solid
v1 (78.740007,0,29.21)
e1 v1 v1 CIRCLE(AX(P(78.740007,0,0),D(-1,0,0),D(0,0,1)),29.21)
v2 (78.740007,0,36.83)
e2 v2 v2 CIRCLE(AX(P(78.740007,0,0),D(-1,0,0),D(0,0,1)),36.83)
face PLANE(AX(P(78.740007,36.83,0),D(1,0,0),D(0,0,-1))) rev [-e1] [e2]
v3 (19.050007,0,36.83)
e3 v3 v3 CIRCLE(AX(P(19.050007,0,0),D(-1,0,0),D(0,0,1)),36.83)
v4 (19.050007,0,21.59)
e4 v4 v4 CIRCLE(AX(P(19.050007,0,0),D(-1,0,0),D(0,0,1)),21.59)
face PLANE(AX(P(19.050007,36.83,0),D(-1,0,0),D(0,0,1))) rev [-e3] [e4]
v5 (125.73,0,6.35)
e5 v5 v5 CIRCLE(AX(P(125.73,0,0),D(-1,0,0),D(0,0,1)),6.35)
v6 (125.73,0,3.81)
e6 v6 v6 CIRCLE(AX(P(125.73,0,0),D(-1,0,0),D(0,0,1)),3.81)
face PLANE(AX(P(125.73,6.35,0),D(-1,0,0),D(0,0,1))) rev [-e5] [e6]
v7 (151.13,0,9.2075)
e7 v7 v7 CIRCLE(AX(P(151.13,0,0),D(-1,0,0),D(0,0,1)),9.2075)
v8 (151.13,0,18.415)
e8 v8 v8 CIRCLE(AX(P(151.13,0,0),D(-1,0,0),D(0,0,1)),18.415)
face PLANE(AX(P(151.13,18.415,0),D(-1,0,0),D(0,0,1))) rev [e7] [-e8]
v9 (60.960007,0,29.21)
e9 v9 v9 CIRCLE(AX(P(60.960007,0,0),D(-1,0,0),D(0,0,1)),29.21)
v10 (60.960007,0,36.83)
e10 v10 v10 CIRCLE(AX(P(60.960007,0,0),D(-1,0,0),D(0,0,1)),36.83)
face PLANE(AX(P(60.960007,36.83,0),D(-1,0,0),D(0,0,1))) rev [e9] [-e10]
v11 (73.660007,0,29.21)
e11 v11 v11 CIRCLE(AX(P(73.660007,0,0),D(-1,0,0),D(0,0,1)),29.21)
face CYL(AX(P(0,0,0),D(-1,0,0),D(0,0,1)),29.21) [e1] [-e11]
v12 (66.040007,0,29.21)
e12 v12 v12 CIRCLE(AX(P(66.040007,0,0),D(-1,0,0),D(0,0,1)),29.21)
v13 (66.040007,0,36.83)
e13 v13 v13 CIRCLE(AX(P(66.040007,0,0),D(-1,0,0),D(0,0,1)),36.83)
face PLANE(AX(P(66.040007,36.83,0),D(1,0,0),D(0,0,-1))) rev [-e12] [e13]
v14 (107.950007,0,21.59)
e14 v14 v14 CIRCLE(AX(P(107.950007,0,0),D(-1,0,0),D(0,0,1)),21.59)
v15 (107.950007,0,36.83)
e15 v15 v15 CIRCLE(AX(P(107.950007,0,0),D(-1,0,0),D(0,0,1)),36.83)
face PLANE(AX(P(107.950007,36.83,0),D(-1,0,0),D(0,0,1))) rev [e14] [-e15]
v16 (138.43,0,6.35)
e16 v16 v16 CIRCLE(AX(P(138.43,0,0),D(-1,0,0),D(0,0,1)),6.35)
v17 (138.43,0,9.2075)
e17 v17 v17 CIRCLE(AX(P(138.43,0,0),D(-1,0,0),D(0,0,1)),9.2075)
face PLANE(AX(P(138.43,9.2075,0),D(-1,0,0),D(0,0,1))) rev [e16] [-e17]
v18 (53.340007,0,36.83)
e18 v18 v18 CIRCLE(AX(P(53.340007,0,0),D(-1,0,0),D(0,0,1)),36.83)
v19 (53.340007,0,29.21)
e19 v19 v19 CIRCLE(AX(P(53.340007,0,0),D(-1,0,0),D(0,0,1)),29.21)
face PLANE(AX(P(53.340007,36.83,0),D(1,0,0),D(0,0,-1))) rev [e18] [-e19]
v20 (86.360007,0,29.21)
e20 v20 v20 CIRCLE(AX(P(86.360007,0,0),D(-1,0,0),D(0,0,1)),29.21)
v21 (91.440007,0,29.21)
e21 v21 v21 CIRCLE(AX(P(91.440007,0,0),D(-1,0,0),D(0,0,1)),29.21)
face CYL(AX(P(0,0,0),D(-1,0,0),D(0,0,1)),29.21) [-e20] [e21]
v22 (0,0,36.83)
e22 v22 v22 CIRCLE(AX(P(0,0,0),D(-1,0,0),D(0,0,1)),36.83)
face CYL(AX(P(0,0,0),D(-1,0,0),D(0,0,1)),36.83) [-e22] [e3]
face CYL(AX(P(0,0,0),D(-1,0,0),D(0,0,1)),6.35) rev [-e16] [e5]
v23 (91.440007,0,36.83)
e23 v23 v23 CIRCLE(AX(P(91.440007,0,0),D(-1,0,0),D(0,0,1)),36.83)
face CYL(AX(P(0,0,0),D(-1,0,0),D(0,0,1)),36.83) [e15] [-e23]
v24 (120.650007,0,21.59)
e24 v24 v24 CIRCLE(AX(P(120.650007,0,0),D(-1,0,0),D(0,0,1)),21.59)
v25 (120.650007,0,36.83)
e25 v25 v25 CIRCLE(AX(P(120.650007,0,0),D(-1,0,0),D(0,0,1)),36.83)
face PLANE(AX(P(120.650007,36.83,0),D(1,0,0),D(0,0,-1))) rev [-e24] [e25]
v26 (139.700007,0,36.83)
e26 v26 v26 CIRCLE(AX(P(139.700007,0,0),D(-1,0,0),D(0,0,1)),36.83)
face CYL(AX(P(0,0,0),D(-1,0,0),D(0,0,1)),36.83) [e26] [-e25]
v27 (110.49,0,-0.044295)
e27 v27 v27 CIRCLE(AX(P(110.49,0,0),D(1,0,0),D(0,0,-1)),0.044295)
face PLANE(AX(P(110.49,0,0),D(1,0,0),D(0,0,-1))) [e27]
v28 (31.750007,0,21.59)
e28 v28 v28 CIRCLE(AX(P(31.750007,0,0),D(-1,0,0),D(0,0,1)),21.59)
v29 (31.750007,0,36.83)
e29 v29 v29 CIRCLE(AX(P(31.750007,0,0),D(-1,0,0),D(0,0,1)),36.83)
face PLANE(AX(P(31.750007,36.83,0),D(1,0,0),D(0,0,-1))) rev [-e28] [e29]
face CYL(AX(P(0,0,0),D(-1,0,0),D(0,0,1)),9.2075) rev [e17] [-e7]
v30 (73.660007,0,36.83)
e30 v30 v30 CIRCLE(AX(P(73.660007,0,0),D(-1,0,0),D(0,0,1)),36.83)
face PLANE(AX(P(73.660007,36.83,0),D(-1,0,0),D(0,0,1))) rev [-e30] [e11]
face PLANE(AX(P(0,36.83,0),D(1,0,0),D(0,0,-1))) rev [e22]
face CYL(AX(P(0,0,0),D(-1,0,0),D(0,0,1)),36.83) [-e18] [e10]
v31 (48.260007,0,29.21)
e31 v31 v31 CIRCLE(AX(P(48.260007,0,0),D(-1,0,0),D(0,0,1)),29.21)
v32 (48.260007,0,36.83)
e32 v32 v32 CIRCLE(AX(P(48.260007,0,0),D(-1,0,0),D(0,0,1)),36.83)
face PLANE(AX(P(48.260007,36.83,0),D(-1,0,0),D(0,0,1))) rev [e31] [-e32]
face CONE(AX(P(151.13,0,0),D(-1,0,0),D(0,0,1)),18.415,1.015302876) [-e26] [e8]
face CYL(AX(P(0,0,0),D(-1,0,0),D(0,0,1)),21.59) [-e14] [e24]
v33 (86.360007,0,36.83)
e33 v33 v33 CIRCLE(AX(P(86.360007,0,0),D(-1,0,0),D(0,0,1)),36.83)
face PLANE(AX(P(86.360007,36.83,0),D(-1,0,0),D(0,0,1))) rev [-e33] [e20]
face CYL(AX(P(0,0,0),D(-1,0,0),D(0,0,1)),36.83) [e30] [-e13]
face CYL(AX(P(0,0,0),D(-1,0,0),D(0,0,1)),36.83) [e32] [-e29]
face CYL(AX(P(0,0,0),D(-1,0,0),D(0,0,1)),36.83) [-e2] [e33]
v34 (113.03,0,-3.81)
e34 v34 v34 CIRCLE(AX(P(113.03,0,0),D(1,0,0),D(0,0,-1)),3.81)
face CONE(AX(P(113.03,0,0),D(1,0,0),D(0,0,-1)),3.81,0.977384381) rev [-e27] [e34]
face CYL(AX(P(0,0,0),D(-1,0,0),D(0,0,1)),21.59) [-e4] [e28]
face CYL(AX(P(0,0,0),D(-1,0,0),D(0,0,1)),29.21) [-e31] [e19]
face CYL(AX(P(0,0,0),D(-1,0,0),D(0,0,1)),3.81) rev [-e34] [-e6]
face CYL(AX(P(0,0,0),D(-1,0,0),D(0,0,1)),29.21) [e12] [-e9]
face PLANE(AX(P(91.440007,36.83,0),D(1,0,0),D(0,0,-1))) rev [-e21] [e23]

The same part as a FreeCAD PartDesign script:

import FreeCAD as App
import Part
import Sketcher
Q = App.Units.Quantity

doc = App.newDocument("Part")
body = doc.addObject("PartDesign::Body", "Body")

# Sketch on XY plane
sketch1 = doc.addObject("Sketcher::SketchObject", "Sketch")
body.addObject(sketch1)
sketch1.AttachmentSupport = (doc.XY_Plane, [""])
sketch1.MapMode = "FlatFace"
sketch1.addGeometry(Part.LineSegment(App.Vector(0, 0, 0), App.Vector(113, 0, 0)), False)
sketch1.addGeometry(Part.LineSegment(App.Vector(113, 0, 0), App.Vector(113, 3.8, 0)), False)
sketch1.addGeometry(Part.LineSegment(App.Vector(113, 3.8, 0), App.Vector(125.7, 3.8, 0)), False)
sketch1.addGeometry(Part.LineSegment(App.Vector(125.7, 3.8, 0), App.Vector(125.7, 6.3, 0)), False)
sketch1.addGeometry(Part.LineSegment(App.Vector(125.7, 6.3, 0), App.Vector(138.4, 6.3, 0)), False)
sketch1.addGeometry(Part.LineSegment(App.Vector(138.4, 6.3, 0), App.Vector(138.4, 9.2, 0)), False)
sketch1.addGeometry(Part.LineSegment(App.Vector(138.4, 9.2, 0), App.Vector(151.1, 9.2, 0)), False)
sketch1.addGeometry(Part.LineSegment(App.Vector(151.1, 9.2, 0), App.Vector(151.1, 18.4, 0)), False)
sketch1.addGeometry(Part.LineSegment(App.Vector(151.1, 18.4, 0), App.Vector(139.7, 36.8, 0)), False)
sketch1.addGeometry(Part.LineSegment(App.Vector(139.7, 36.8, 0), App.Vector(120.7, 36.8, 0)), False)
sketch1.addGeometry(Part.LineSegment(App.Vector(120.7, 36.8, 0), App.Vector(120.7, 21.6, 0)), False)
sketch1.addGeometry(Part.LineSegment(App.Vector(120.7, 21.6, 0), App.Vector(108, 21.6, 0)), False)
sketch1.addGeometry(Part.LineSegment(App.Vector(108, 21.6, 0), App.Vector(108, 36.8, 0)), False)
sketch1.addGeometry(Part.LineSegment(App.Vector(108, 36.8, 0), App.Vector(91.4, 36.8, 0)), False)
sketch1.addGeometry(Part.LineSegment(App.Vector(91.4, 36.8, 0), App.Vector(91.4, 29.2, 0)), False)
sketch1.addGeometry(Part.LineSegment(App.Vector(91.4, 29.2, 0), App.Vector(86.4, 29.2, 0)), False)
sketch1.addGeometry(Part.LineSegment(App.Vector(86.4, 29.2, 0), App.Vector(86.4, 36.8, 0)), False)
sketch1.addGeometry(Part.LineSegment(App.Vector(86.4, 36.8, 0), App.Vector(78.7, 36.8, 0)), False)
sketch1.addGeometry(Part.LineSegment(App.Vector(78.7, 36.8, 0), App.Vector(78.7, 29.2, 0)), False)
sketch1.addGeometry(Part.LineSegment(App.Vector(78.7, 29.2, 0), App.Vector(73.7, 29.2, 0)), False)
sketch1.addGeometry(Part.LineSegment(App.Vector(73.7, 29.2, 0), App.Vector(73.7, 36.8, 0)), False)
sketch1.addGeometry(Part.LineSegment(App.Vector(73.7, 36.8, 0), App.Vector(66, 36.8, 0)), False)
sketch1.addGeometry(Part.LineSegment(App.Vector(66, 36.8, 0), App.Vector(66, 29.2, 0)), False)
sketch1.addGeometry(Part.LineSegment(App.Vector(66, 29.2, 0), App.Vector(61, 29.2, 0)), False)
sketch1.addGeometry(Part.LineSegment(App.Vector(61, 29.2, 0), App.Vector(61, 36.8, 0)), False)
sketch1.addGeometry(Part.LineSegment(App.Vector(61, 36.8, 0), App.Vector(53.3, 36.8, 0)), False)
sketch1.addGeometry(Part.LineSegment(App.Vector(53.3, 36.8, 0), App.Vector(53.3, 29.2, 0)), False)
sketch1.addGeometry(Part.LineSegment(App.Vector(53.3, 29.2, 0), App.Vector(48.3, 29.2, 0)), False)
sketch1.addGeometry(Part.LineSegment(App.Vector(48.3, 29.2, 0), App.Vector(48.3, 36.8, 0)), False)
sketch1.addGeometry(Part.LineSegment(App.Vector(48.3, 36.8, 0), App.Vector(31.8, 36.8, 0)), False)
sketch1.addGeometry(Part.LineSegment(App.Vector(31.8, 36.8, 0), App.Vector(31.8, 21.6, 0)), False)
sketch1.addGeometry(Part.LineSegment(App.Vector(31.8, 21.6, 0), App.Vector(19.1, 21.6, 0)), False)
sketch1.addGeometry(Part.LineSegment(App.Vector(19.1, 21.6, 0), App.Vector(19.1, 36.8, 0)), False)
sketch1.addGeometry(Part.LineSegment(App.Vector(19.1, 36.8, 0), App.Vector(0, 36.8, 0)), False)
sketch1.addGeometry(Part.LineSegment(App.Vector(0, 36.8, 0), App.Vector(0, 0, 0)), False)
sketch1.addConstraint(Sketcher.Constraint("Coincident", 0, 2, 1, 1))
sketch1.addConstraint(Sketcher.Constraint("Coincident", 1, 2, 2, 1))
sketch1.addConstraint(Sketcher.Constraint("Coincident", 2, 2, 3, 1))
sketch1.addConstraint(Sketcher.Constraint("Coincident", 3, 2, 4, 1))
sketch1.addConstraint(Sketcher.Constraint("Coincident", 4, 2, 5, 1))
sketch1.addConstraint(Sketcher.Constraint("Coincident", 5, 2, 6, 1))
sketch1.addConstraint(Sketcher.Constraint("Coincident", 6, 2, 7, 1))
sketch1.addConstraint(Sketcher.Constraint("Coincident", 7, 2, 8, 1))
sketch1.addConstraint(Sketcher.Constraint("Coincident", 8, 2, 9, 1))
sketch1.addConstraint(Sketcher.Constraint("Coincident", 9, 2, 10, 1))
sketch1.addConstraint(Sketcher.Constraint("Coincident", 10, 2, 11, 1))
sketch1.addConstraint(Sketcher.Constraint("Coincident", 11, 2, 12, 1))
sketch1.addConstraint(Sketcher.Constraint("Coincident", 12, 2, 13, 1))
sketch1.addConstraint(Sketcher.Constraint("Coincident", 13, 2, 14, 1))
sketch1.addConstraint(Sketcher.Constraint("Coincident", 14, 2, 15, 1))
sketch1.addConstraint(Sketcher.Constraint("Coincident", 15, 2, 16, 1))
sketch1.addConstraint(Sketcher.Constraint("Coincident", 16, 2, 17, 1))
sketch1.addConstraint(Sketcher.Constraint("Coincident", 17, 2, 18, 1))
sketch1.addConstraint(Sketcher.Constraint("Coincident", 18, 2, 19, 1))
sketch1.addConstraint(Sketcher.Constraint("Coincident", 19, 2, 20, 1))
sketch1.addConstraint(Sketcher.Constraint("Coincident", 20, 2, 21, 1))
sketch1.addConstraint(Sketcher.Constraint("Coincident", 21, 2, 22, 1))
sketch1.addConstraint(Sketcher.Constraint("Coincident", 22, 2, 23, 1))
sketch1.addConstraint(Sketcher.Constraint("Coincident", 23, 2, 24, 1))
sketch1.addConstraint(Sketcher.Constraint("Coincident", 24, 2, 25, 1))
sketch1.addConstraint(Sketcher.Constraint("Coincident", 25, 2, 26, 1))
sketch1.addConstraint(Sketcher.Constraint("Coincident", 26, 2, 27, 1))
sketch1.addConstraint(Sketcher.Constraint("Coincident", 27, 2, 28, 1))
sketch1.addConstraint(Sketcher.Constraint("Coincident", 28, 2, 29, 1))
sketch1.addConstraint(Sketcher.Constraint("Coincident", 29, 2, 30, 1))
sketch1.addConstraint(Sketcher.Constraint("Coincident", 30, 2, 31, 1))
sketch1.addConstraint(Sketcher.Constraint("Coincident", 31, 2, 32, 1))
sketch1.addConstraint(Sketcher.Constraint("Coincident", 32, 2, 33, 1))
sketch1.addConstraint(Sketcher.Constraint("Coincident", 33, 2, 34, 1))
sketch1.addConstraint(Sketcher.Constraint("Coincident", 34, 2, 0, 1))
sketch1.addConstraint(Sketcher.Constraint("Horizontal", 0))
sketch1.addConstraint(Sketcher.Constraint("Vertical", 1))
sketch1.addConstraint(Sketcher.Constraint("Horizontal", 2))
sketch1.addConstraint(Sketcher.Constraint("Vertical", 3))
sketch1.addConstraint(Sketcher.Constraint("Horizontal", 4))
sketch1.addConstraint(Sketcher.Constraint("Vertical", 5))
sketch1.addConstraint(Sketcher.Constraint("Horizontal", 6))
sketch1.addConstraint(Sketcher.Constraint("Vertical", 7))
sketch1.addConstraint(Sketcher.Constraint("Horizontal", 9))
sketch1.addConstraint(Sketcher.Constraint("Vertical", 10))
sketch1.addConstraint(Sketcher.Constraint("Horizontal", 11))
sketch1.addConstraint(Sketcher.Constraint("Vertical", 12))
sketch1.addConstraint(Sketcher.Constraint("Horizontal", 13))
sketch1.addConstraint(Sketcher.Constraint("Vertical", 14))
sketch1.addConstraint(Sketcher.Constraint("Horizontal", 15))
sketch1.addConstraint(Sketcher.Constraint("Vertical", 16))
sketch1.addConstraint(Sketcher.Constraint("Horizontal", 17))
sketch1.addConstraint(Sketcher.Constraint("Vertical", 18))
sketch1.addConstraint(Sketcher.Constraint("Horizontal", 19))
sketch1.addConstraint(Sketcher.Constraint("Vertical", 20))
sketch1.addConstraint(Sketcher.Constraint("Horizontal", 21))
sketch1.addConstraint(Sketcher.Constraint("Vertical", 22))
sketch1.addConstraint(Sketcher.Constraint("Horizontal", 23))
sketch1.addConstraint(Sketcher.Constraint("Vertical", 24))
sketch1.addConstraint(Sketcher.Constraint("Horizontal", 25))
sketch1.addConstraint(Sketcher.Constraint("Vertical", 26))
sketch1.addConstraint(Sketcher.Constraint("Horizontal", 27))
sketch1.addConstraint(Sketcher.Constraint("Vertical", 28))
sketch1.addConstraint(Sketcher.Constraint("Horizontal", 29))
sketch1.addConstraint(Sketcher.Constraint("Vertical", 30))
sketch1.addConstraint(Sketcher.Constraint("Horizontal", 31))
sketch1.addConstraint(Sketcher.Constraint("Vertical", 32))
sketch1.addConstraint(Sketcher.Constraint("Horizontal", 33))
sketch1.addConstraint(Sketcher.Constraint("Vertical", 34))
sketch1.addConstraint(Sketcher.Constraint("Coincident", 34, 2, -1, 1))
sketch1.addConstraint(Sketcher.Constraint("Horizontal", 9, 2, 12, 2))
sketch1.addConstraint(Sketcher.Constraint("Horizontal", 13, 2, 16, 2))
sketch1.addConstraint(Sketcher.Constraint("Horizontal", 15, 2, 18, 2))
sketch1.addConstraint(Sketcher.Constraint("Horizontal", 17, 2, 20, 2))
sketch1.addConstraint(Sketcher.Constraint("Horizontal", 19, 2, 22, 2))
sketch1.addConstraint(Sketcher.Constraint("Horizontal", 21, 2, 24, 2))
sketch1.addConstraint(Sketcher.Constraint("Horizontal", 23, 2, 26, 2))
sketch1.addConstraint(Sketcher.Constraint("Horizontal", 25, 2, 28, 2))
sketch1.addConstraint(Sketcher.Constraint("Horizontal", 11, 2, 30, 2))
sketch1.addConstraint(Sketcher.Constraint("Horizontal", 29, 2, 32, 2))
sketch1.addConstraint(Sketcher.Constraint("Equal", 2, 4))
sketch1.addConstraint(Sketcher.Constraint("Equal", 4, 6))
sketch1.addConstraint(Sketcher.Constraint("Equal", 6, 11))
sketch1.addConstraint(Sketcher.Constraint("Equal", 15, 19))
sketch1.addConstraint(Sketcher.Constraint("Equal", 17, 21))
sketch1.addConstraint(Sketcher.Constraint("Equal", 19, 23))
sketch1.addConstraint(Sketcher.Constraint("Equal", 21, 25))
sketch1.addConstraint(Sketcher.Constraint("Equal", 23, 27))
sketch1.addConstraint(Sketcher.Constraint("Equal", 13, 29))
sketch1.addConstraint(Sketcher.Constraint("Equal", 11, 31))
sketch1.addConstraint(Sketcher.Constraint("Equal", 25, 14))
sketch1.addConstraint(Sketcher.Constraint("DistanceX", 2, 1, 2, 2, Q("0.5 in")))
sketch1.addConstraint(Sketcher.Constraint("DistanceX", 15, 2, 15, 1, Q("0.2 in")))
sketch1.addConstraint(Sketcher.Constraint("DistanceX", 17, 2, 17, 1, Q("0.3 in")))
sketch1.addConstraint(Sketcher.Constraint("DistanceY", 3, 1, 3, 2, Q("0.1 in")))
sketch1.addConstraint(Sketcher.Constraint("DistanceY", 10, 2, 10, 1, Q("0.6 in")))
sketch1.addConstraint(Sketcher.Constraint("DistanceX", 0, 1, 0, 2, Q("4.45 in")))
sketch1.addConstraint(Sketcher.Constraint("DistanceX", 9, 2, 9, 1, Q("0.75 in")))
sketch1.addConstraint(Sketcher.Constraint("DistanceX", 13, 2, 13, 1, Q("0.65 in")))
sketch1.addConstraint(Sketcher.Constraint("DistanceY", 1, 1, 1, 2, Q("0.15 in")))
sketch1.addConstraint(Sketcher.Constraint("DistanceY", 34, 2, 34, 1, Q("1.45 in")))
sketch1.addConstraint(Sketcher.Constraint("DistanceY", 5, 1, 5, 2, Q("0.1125 in")))
sketch1.addConstraint(Sketcher.Constraint("DistanceY", 7, 1, 7, 2, Q("0.3625 in")))
sketch1.addConstraint(Sketcher.Constraint("DistanceX", 33, 2, 33, 1, Q("19.050007 mm")))
revolution = doc.addObject("PartDesign::Revolution", "Revolution")
body.addObject(revolution)
revolution.Profile = sketch1
revolution.ReferenceAxis = (sketch1, ["H_Axis"])
revolution.Angle = 360

# Sketch on YZ plane
sketch2 = doc.addObject("Sketcher::SketchObject", "Sketch001")
body.addObject(sketch2)
sketch2.AttachmentSupport = (doc.YZ_Plane, [""])
sketch2.MapMode = "FlatFace"
sketch2.AttachmentOffset = App.Placement(App.Vector(0, 0, 4.45 * 25.4), App.Rotation())
sketch2.addGeometry(Part.Circle(App.Vector(0, 0, 0), App.Vector(0, 0, 1), 3.8), False)
sketch2.addConstraint(Sketcher.Constraint("Coincident", 0, 3, -1, 1))
sketch2.addConstraint(Sketcher.Constraint("Diameter", 0, Q("0.3 in")))
pocket1 = doc.addObject("PartDesign::Pocket", "Pocket")
body.addObject(pocket1)
pocket1.Profile = sketch2
pocket1.Length = Q("0.1 in")
pocket1.TaperAngle = -56

doc.recompute()
